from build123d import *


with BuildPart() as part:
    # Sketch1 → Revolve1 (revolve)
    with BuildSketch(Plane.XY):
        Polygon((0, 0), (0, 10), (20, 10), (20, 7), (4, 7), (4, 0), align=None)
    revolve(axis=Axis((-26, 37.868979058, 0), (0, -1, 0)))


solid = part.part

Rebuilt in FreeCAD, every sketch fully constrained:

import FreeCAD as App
import Part
import Sketcher
Q = App.Units.Quantity


def add_polygon(sketch, points):
    """Adds a closed chain of lines whose ends are joined by coincident constraints."""
    first, n = sketch.GeometryCount, len(points)
    for a, b in zip(points, points[1:] + points[:1]):
        sketch.addGeometry(Part.LineSegment(App.Vector(*a, 0), App.Vector(*b, 0)), False)
    for i in range(n):
        sketch.addConstraint(Sketcher.Constraint("Coincident", first + i, 2, first + (i + 1) % n, 1))

doc = App.newDocument("Part")
params = doc.addObject("Spreadsheet::Sheet", "Params")
for row, (alias, value) in enumerate([
    ("sketch1_width", "4 mm"),
    ("sketch1_width2", "16 mm"),
    ("sketch1_height", "10 mm"),
    ("sketch1_height2", "7 mm"),
    ("revolution_angle", "360 deg"),
], start=1):
    params.set(f"A{row}", alias)
    params.set(f"B{row}", "=" + value)
    params.setAlias(f"B{row}", alias)

body = doc.addObject("PartDesign::Body", "Body")

# Sketch on XY plane
sketch1 = body.newObject("Sketcher::SketchObject", "Sketch")
sketch1.AttachmentSupport = (doc.getObject("XY_Plane"), [""])
sketch1.MapMode = "FlatFace"
add_polygon(sketch1, [(0, 10), (0, 0), (4, 0), (4, 7), (20, 7), (20, 10)])  # lines 0-5
sketch1.addGeometry(Part.LineSegment(App.Vector(-26, 10, 0), App.Vector(-26, 0, 0)), True)  # axis
sketch1.addConstraint(Sketcher.Constraint("Vertical", 0))
sketch1.addConstraint(Sketcher.Constraint("Horizontal", 1))
sketch1.addConstraint(Sketcher.Constraint("Vertical", 2))
sketch1.addConstraint(Sketcher.Constraint("Horizontal", 3))
sketch1.addConstraint(Sketcher.Constraint("Vertical", 4))
sketch1.addConstraint(Sketcher.Constraint("Horizontal", 5))
sketch1.addConstraint(Sketcher.Constraint("Vertical", 6))
sketch1.addConstraint(Sketcher.Constraint("Coincident", 0, 2, -1, 1))
sketch1.addConstraint(Sketcher.Constraint("PointOnObject", 6, 2, -1))
sketch1.addConstraint(Sketcher.Constraint("Horizontal", 5, 2, 6, 1))
sketch1.addConstraint(Sketcher.Constraint("DistanceX", 1, 1, 1, 2, Q("4 mm")))
sketch1.addConstraint(Sketcher.Constraint("DistanceX", 3, 1, 3, 2, Q("16 mm")))
sketch1.addConstraint(Sketcher.Constraint("DistanceY", 0, 2, 0, 1, Q("10 mm")))
sketch1.addConstraint(Sketcher.Constraint("DistanceY", 2, 1, 2, 2, Q("7 mm")))
sketch1.addConstraint(Sketcher.Constraint("DistanceX", 6, 1, -1, 1, Q("26 mm")))
sketch1.setExpression("Constraints[16]", "Params.sketch1_width")
sketch1.setExpression("Constraints[17]", "Params.sketch1_width2")
sketch1.setExpression("Constraints[18]", "Params.sketch1_height")
sketch1.setExpression("Constraints[19]", "Params.sketch1_height2")
revolution = body.newObject("PartDesign::Revolution", "Revolution")
revolution.Profile = sketch1
revolution.ReferenceAxis = (sketch1, ["Axis0"])
revolution.setExpression("Angle", "Params.revolution_angle")

doc.recompute()
